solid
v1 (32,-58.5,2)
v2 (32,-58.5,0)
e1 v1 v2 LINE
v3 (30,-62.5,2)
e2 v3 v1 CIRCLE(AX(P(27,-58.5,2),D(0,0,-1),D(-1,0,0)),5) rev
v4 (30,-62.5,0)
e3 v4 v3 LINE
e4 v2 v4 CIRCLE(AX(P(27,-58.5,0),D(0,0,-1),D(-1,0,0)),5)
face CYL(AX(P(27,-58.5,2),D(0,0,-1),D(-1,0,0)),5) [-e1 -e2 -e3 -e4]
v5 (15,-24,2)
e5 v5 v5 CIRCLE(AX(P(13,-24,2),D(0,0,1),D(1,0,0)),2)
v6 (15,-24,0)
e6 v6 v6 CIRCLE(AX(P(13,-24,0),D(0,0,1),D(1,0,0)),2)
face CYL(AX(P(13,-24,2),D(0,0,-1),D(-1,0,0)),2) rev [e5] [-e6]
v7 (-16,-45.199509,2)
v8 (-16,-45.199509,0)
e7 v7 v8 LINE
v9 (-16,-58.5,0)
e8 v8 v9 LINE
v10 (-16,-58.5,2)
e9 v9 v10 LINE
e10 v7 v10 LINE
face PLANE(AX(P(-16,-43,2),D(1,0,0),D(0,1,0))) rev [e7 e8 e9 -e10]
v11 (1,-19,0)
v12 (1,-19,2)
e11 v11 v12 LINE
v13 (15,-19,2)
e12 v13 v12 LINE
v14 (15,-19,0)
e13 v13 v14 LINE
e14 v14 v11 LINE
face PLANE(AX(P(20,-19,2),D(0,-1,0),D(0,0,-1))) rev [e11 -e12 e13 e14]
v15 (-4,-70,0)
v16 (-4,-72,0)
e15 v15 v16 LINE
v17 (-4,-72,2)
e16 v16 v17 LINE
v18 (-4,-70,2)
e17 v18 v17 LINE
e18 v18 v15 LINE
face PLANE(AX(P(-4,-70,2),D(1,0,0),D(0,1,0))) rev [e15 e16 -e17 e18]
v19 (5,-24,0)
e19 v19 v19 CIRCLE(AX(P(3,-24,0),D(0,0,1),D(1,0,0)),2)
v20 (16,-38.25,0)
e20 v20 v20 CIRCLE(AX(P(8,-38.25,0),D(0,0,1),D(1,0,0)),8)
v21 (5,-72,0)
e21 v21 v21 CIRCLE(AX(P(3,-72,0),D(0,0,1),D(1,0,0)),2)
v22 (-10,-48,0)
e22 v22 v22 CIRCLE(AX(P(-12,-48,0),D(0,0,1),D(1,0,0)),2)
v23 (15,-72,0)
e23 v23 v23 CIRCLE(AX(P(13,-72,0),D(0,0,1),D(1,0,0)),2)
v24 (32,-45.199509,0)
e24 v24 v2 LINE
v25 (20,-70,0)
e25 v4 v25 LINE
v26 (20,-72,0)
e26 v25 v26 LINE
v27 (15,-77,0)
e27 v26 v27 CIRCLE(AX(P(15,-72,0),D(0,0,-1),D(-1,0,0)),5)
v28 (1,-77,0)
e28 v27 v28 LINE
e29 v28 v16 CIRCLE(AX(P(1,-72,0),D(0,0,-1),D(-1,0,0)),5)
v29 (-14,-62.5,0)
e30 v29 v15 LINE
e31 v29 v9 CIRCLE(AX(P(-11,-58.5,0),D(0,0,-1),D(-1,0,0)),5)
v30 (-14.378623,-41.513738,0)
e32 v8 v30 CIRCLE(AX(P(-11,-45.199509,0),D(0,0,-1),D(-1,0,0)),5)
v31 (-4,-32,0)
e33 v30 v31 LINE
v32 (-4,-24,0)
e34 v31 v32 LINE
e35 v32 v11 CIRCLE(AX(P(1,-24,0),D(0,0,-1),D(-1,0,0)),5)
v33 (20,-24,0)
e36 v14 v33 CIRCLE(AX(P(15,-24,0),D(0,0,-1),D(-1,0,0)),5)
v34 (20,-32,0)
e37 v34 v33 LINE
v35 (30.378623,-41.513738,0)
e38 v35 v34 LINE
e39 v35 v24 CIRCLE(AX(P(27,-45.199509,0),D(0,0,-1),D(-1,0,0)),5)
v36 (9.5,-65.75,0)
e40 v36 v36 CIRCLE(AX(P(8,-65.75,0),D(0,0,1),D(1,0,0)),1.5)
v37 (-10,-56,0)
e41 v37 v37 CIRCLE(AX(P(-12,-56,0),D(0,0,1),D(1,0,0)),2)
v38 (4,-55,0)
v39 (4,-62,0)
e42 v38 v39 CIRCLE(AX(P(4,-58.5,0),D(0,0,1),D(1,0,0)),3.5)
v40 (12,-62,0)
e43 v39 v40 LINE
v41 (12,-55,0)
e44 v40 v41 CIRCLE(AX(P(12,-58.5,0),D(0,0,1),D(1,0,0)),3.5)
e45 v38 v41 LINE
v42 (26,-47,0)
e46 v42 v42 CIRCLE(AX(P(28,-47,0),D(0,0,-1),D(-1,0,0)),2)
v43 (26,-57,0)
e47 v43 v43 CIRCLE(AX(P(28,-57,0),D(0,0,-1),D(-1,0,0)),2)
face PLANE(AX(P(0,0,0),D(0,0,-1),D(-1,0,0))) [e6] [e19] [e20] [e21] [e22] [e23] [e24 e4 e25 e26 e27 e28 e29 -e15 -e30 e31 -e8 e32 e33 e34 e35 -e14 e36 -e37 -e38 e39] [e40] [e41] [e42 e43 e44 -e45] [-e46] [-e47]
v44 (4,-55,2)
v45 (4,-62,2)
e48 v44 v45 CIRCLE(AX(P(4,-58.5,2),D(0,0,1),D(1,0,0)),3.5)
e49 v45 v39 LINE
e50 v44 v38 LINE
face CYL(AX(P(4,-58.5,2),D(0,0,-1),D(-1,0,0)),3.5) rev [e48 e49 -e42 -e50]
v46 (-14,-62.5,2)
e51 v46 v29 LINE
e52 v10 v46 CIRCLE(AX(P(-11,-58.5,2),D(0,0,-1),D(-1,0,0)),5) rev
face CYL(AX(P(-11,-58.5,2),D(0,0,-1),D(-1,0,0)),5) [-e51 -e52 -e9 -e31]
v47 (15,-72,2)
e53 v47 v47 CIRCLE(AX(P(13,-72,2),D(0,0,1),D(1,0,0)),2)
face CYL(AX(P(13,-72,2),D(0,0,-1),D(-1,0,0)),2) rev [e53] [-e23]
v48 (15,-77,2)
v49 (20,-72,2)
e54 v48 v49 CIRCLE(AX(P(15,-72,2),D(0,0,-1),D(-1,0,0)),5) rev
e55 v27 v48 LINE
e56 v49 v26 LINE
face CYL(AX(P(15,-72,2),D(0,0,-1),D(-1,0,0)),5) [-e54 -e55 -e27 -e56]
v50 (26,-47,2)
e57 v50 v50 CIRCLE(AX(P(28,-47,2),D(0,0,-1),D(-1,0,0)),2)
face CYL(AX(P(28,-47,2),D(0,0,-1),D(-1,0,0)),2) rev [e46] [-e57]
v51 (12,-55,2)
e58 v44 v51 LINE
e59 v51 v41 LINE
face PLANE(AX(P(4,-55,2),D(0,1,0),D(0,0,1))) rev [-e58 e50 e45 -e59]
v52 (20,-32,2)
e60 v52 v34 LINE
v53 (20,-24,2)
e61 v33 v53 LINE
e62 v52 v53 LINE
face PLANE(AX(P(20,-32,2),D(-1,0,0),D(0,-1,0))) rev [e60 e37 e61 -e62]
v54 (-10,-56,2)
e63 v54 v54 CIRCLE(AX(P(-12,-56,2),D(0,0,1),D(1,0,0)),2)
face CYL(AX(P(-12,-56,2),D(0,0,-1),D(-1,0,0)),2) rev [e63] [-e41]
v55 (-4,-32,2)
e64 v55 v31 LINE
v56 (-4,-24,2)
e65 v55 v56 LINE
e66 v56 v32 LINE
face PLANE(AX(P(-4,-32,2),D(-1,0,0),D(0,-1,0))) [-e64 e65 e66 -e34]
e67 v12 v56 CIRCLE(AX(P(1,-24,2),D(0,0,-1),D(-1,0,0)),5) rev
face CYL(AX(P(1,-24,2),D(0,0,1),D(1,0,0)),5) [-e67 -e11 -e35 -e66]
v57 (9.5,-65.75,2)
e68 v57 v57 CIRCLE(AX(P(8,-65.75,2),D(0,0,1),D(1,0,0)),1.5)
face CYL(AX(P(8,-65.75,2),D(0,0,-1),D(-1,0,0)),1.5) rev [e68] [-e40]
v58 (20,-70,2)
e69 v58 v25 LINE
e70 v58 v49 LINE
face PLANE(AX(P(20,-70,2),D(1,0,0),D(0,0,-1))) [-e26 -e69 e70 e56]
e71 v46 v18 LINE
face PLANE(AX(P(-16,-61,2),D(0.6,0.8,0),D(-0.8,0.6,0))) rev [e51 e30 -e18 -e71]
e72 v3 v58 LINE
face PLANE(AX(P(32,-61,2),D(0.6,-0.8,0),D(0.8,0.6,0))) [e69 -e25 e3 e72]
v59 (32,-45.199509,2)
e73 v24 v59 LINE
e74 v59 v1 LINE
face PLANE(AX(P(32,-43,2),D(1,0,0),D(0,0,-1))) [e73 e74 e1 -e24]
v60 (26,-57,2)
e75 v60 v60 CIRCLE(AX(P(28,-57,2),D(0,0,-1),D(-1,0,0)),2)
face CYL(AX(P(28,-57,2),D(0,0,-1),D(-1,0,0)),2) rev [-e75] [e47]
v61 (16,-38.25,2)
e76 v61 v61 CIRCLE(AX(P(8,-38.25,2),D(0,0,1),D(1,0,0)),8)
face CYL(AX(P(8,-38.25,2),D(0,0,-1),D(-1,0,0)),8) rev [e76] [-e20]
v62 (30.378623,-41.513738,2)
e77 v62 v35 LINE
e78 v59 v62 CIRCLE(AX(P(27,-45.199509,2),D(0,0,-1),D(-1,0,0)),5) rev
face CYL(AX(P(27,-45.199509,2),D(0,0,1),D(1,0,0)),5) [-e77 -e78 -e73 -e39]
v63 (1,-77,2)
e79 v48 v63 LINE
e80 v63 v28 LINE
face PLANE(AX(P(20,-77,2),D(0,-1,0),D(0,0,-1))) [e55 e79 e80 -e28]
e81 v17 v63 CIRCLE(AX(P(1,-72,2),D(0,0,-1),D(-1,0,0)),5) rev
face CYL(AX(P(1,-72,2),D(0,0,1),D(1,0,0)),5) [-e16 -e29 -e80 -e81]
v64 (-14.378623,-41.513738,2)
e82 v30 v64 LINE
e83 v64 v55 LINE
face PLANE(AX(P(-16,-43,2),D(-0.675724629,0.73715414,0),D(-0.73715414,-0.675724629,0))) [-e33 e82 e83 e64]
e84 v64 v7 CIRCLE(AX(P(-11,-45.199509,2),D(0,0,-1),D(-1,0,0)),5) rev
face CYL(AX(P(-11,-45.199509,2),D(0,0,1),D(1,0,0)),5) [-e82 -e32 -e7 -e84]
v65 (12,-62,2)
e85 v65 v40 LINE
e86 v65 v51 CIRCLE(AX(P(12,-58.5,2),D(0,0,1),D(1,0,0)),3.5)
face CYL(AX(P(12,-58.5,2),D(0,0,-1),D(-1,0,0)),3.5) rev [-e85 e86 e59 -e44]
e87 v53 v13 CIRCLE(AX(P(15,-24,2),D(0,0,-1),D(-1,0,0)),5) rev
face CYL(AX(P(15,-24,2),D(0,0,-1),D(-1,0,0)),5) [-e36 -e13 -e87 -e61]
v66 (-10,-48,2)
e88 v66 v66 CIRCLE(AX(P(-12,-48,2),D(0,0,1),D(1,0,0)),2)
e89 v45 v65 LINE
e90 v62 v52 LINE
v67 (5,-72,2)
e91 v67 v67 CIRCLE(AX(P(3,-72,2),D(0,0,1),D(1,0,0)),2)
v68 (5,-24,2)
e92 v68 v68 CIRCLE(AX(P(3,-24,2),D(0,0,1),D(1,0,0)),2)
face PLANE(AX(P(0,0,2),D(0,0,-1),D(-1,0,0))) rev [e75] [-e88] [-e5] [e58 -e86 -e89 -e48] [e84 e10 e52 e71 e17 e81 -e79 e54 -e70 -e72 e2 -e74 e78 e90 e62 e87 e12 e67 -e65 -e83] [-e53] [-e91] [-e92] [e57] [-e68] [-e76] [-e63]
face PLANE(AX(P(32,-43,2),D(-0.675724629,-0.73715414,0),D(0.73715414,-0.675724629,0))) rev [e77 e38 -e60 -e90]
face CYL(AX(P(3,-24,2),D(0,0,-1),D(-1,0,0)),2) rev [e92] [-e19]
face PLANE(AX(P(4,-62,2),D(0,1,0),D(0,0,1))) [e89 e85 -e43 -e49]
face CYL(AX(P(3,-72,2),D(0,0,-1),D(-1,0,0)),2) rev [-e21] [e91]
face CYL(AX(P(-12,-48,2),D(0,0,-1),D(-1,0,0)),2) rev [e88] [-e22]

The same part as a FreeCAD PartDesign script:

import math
import FreeCAD as App
import Part
import Sketcher

V = App.Vector
Q = App.Units.Quantity


def edges_at(feature, points):
    """Names of the edges that pass closest to the given points."""
    edges = feature.Shape.Edges
    near = lambda p: min(range(len(edges)), key=lambda i: edges[i].distToShape(Part.Vertex(*p))[0])
    return sorted({f"Edge{near(p) + 1}" for p in points})


def add_polygon(sketch, points):
    """Adds a closed chain of lines whose ends are joined by coincident constraints."""
    first, n = sketch.GeometryCount, len(points)
    for a, b in zip(points, points[1:] + points[:1]):
        sketch.addGeometry(Part.LineSegment(App.Vector(*a, 0), App.Vector(*b, 0)), False)
    for i in range(n):
        sketch.addConstraint(Sketcher.Constraint("Coincident", first + i, 2, first + (i + 1) % n, 1))

doc = App.newDocument("Part")
body = doc.addObject("PartDesign::Body", "Body")

# Sketch on XY plane
sketch1 = doc.addObject("Sketcher::SketchObject", "Sketch")
body.addObject(sketch1)
sketch1.AttachmentSupport = (doc.XY_Plane, [""])
sketch1.MapMode = "FlatFace"
add_polygon(sketch1, [(20, -19), (-4, -19), (-4, -32), (-16, -43), (-16, -61), (-4, -70), (-4, -77), (20, -77), (20, -70), (32, -61), (32, -43), (20, -32)])  # lines 0-11
sketch1.addGeometry(Part.Circle(V(3, -72, 0), V(0, 0, 1), 2), False)  # 12
sketch1.addGeometry(Part.Circle(V(-12, -56, 0), V(0, 0, 1), 2), False)  # 13
sketch1.addGeometry(Part.Circle(V(13, -72, 0), V(0, 0, 1), 2), False)  # 14
sketch1.addGeometry(Part.Circle(V(8, -65.8, 0), V(0, 0, 1), 1.5), False)  # 15
sketch1.addGeometry(Part.ArcOfCircle(Part.Circle(V(4, -58.5, 0), V(0, 0, 1), 3.5), math.radians(90), math.radians(270)), False)  # 16
sketch1.addGeometry(Part.LineSegment(V(4, -55, 0), V(12, -55, 0)), False)  # 17
sketch1.addGeometry(Part.ArcOfCircle(Part.Circle(V(12, -58.5, 0), V(0, 0, 1), 3.5), math.radians(-90), math.radians(90)), False)  # 18
sketch1.addGeometry(Part.LineSegment(V(12, -62, 0), V(4, -62, 0)), False)  # 19
sketch1.addGeometry(Part.Circle(V(28, -57, 0), V(0, 0, 1), 2), False)  # 20
sketch1.addGeometry(Part.Circle(V(-12, -48, 0), V(0, 0, 1), 2), False)  # 21
sketch1.addGeometry(Part.Circle(V(3, -24, 0), V(0, 0, 1), 2), False)  # 22
sketch1.addGeometry(Part.Circle(V(8, -38.2, 0), V(0, 0, 1), 8), False)  # 23
sketch1.addGeometry(Part.Circle(V(28, -47, 0), V(0, 0, 1), 2), False)  # 24
sketch1.addGeometry(Part.Circle(V(13, -24, 0), V(0, 0, 1), 2), False)  # 25
sketch1.addConstraint([
    Sketcher.Constraint("Tangent", 16, 1, 17, 1),
    Sketcher.Constraint("Tangent", 17, 2, 18, 2),
    Sketcher.Constraint("Tangent", 18, 1, 19, 1),
    Sketcher.Constraint("Tangent", 19, 2, 16, 2),
    Sketcher.Constraint("Horizontal", 0),
    Sketcher.Constraint("Vertical", 1),
    Sketcher.Constraint("Vertical", 3),
    Sketcher.Constraint("Vertical", 5),
    Sketcher.Constraint("Horizontal", 6),
    Sketcher.Constraint("Vertical", 7),
    Sketcher.Constraint("Vertical", 9),
    Sketcher.Constraint("Vertical", 11),
    Sketcher.Constraint("Horizontal", 17),
    Sketcher.Constraint("Horizontal", 19),
    Sketcher.Constraint("Equal", 12, 13),
    Sketcher.Constraint("Equal", 13, 14),
    Sketcher.Constraint("Equal", 14, 20),
    Sketcher.Constraint("Equal", 20, 21),
    Sketcher.Constraint("Equal", 21, 22),
    Sketcher.Constraint("Equal", 22, 24),
    Sketcher.Constraint("Equal", 24, 25),
    Sketcher.Constraint("Horizontal", 12, 3, 14, 3),
    Sketcher.Constraint("Horizontal", 22, 3, 25, 3),
    Sketcher.Constraint("Horizontal", 4, 2, 7, 2),
    Sketcher.Constraint("Horizontal", 3, 2, 8, 2),
    Sketcher.Constraint("Horizontal", 2, 2, 9, 2),
    Sketcher.Constraint("Horizontal", 1, 2, 10, 2),
    Sketcher.Constraint("Vertical", 13, 3, 21, 3),
    Sketcher.Constraint("Vertical", 12, 3, 22, 3),
    Sketcher.Constraint("Vertical", 15, 3, 23, 3),
    Sketcher.Constraint("Vertical", 20, 3, 24, 3),
    Sketcher.Constraint("Vertical", 14, 3, 25, 3),
    Sketcher.Constraint("Vertical", 1, 2, 4, 2),
    Sketcher.Constraint("Vertical", 7, 2, 10, 2),
    Sketcher.Constraint("Equal", 4, 8),
    Sketcher.Constraint("Diameter", 12, Q("4 mm")),
    Sketcher.Constraint("Diameter", 15, Q("3 mm")),
    Sketcher.Constraint("Diameter", 23, Q("16 mm")),
    Sketcher.Constraint("Radius", 16, Q("3.5 mm")),
    Sketcher.Constraint("DistanceX", 0, 2, 0, 1, Q("24 mm")),
    Sketcher.Constraint("DistanceX", 17, 1, 17, 2, Q("8 mm")),
    Sketcher.Constraint("DistanceY", 1, 2, 1, 1, Q("13 mm")),
    Sketcher.Constraint("DistanceY", 3, 2, 3, 1, Q("18 mm")),
    Sketcher.Constraint("DistanceY", 5, 2, 5, 1, Q("7 mm")),
    Sketcher.Constraint("Distance", 4, Q("15 mm")),
    Sketcher.Constraint("DistanceX", -1, 1, 12, 3, Q("3 mm")),
    Sketcher.Constraint("DistanceY", 12, 3, -1, 1, Q("72 mm")),
    Sketcher.Constraint("DistanceX", 13, 3, -1, 1, Q("12 mm")),
    Sketcher.Constraint("DistanceY", 13, 3, -1, 1, Q("56 mm")),
    Sketcher.Constraint("DistanceX", -1, 1, 14, 3, Q("13 mm")),
    Sketcher.Constraint("DistanceX", -1, 1, 15, 3, Q("8 mm")),
    Sketcher.Constraint("DistanceX", -1, 1, 16, 3, Q("4 mm")),
    Sketcher.Constraint("DistanceX", -1, 1, 20, 3, Q("28 mm")),
    Sketcher.Constraint("DistanceY", 20, 3, -1, 1, Q("57 mm")),
    Sketcher.Constraint("DistanceY", 21, 3, -1, 1, Q("48 mm")),
    Sketcher.Constraint("DistanceY", 22, 3, -1, 1, Q("24 mm")),
    Sketcher.Constraint("DistanceY", 24, 3, -1, 1, Q("47 mm")),
    Sketcher.Constraint("DistanceX", 0, 2, -1, 1, Q("4 mm")),
    Sketcher.Constraint("DistanceY", 0, 2, -1, 1, Q("19 mm")),
    Sketcher.Constraint("DistanceX", 2, 2, -1, 1, Q("16 mm")),
    Sketcher.Constraint("DistanceY", 2, 2, -1, 1, Q("43 mm")),
    Sketcher.Constraint("DistanceY", 16, 1, -1, 1, Q("55 mm")),
    Sketcher.Constraint("DistanceY", 15, 3, -1, 1, Q("65.75 mm")),
    Sketcher.Constraint("DistanceY", 23, 3, -1, 1, Q("38.25 mm")),
])
pad1 = doc.addObject("PartDesign::Pad", "Pad")
body.addObject(pad1)
pad1.Profile = sketch1
pad1.Length = 2
doc.recompute()

fillet = doc.addObject("PartDesign::Fillet", "Fillet")
body.addObject(fillet)
fillet.Base = (pad1, edges_at(pad1, [
    (32, -43, 1),
    (20, -19, 1),
    (-4, -19, 1),
    (-16, -43, 1),
    (-16, -61, 1),
    (-4, -77, 1),
    (20, -77, 1),
    (32, -61, 1),
]))
fillet.Radius = 5

doc.recompute()
